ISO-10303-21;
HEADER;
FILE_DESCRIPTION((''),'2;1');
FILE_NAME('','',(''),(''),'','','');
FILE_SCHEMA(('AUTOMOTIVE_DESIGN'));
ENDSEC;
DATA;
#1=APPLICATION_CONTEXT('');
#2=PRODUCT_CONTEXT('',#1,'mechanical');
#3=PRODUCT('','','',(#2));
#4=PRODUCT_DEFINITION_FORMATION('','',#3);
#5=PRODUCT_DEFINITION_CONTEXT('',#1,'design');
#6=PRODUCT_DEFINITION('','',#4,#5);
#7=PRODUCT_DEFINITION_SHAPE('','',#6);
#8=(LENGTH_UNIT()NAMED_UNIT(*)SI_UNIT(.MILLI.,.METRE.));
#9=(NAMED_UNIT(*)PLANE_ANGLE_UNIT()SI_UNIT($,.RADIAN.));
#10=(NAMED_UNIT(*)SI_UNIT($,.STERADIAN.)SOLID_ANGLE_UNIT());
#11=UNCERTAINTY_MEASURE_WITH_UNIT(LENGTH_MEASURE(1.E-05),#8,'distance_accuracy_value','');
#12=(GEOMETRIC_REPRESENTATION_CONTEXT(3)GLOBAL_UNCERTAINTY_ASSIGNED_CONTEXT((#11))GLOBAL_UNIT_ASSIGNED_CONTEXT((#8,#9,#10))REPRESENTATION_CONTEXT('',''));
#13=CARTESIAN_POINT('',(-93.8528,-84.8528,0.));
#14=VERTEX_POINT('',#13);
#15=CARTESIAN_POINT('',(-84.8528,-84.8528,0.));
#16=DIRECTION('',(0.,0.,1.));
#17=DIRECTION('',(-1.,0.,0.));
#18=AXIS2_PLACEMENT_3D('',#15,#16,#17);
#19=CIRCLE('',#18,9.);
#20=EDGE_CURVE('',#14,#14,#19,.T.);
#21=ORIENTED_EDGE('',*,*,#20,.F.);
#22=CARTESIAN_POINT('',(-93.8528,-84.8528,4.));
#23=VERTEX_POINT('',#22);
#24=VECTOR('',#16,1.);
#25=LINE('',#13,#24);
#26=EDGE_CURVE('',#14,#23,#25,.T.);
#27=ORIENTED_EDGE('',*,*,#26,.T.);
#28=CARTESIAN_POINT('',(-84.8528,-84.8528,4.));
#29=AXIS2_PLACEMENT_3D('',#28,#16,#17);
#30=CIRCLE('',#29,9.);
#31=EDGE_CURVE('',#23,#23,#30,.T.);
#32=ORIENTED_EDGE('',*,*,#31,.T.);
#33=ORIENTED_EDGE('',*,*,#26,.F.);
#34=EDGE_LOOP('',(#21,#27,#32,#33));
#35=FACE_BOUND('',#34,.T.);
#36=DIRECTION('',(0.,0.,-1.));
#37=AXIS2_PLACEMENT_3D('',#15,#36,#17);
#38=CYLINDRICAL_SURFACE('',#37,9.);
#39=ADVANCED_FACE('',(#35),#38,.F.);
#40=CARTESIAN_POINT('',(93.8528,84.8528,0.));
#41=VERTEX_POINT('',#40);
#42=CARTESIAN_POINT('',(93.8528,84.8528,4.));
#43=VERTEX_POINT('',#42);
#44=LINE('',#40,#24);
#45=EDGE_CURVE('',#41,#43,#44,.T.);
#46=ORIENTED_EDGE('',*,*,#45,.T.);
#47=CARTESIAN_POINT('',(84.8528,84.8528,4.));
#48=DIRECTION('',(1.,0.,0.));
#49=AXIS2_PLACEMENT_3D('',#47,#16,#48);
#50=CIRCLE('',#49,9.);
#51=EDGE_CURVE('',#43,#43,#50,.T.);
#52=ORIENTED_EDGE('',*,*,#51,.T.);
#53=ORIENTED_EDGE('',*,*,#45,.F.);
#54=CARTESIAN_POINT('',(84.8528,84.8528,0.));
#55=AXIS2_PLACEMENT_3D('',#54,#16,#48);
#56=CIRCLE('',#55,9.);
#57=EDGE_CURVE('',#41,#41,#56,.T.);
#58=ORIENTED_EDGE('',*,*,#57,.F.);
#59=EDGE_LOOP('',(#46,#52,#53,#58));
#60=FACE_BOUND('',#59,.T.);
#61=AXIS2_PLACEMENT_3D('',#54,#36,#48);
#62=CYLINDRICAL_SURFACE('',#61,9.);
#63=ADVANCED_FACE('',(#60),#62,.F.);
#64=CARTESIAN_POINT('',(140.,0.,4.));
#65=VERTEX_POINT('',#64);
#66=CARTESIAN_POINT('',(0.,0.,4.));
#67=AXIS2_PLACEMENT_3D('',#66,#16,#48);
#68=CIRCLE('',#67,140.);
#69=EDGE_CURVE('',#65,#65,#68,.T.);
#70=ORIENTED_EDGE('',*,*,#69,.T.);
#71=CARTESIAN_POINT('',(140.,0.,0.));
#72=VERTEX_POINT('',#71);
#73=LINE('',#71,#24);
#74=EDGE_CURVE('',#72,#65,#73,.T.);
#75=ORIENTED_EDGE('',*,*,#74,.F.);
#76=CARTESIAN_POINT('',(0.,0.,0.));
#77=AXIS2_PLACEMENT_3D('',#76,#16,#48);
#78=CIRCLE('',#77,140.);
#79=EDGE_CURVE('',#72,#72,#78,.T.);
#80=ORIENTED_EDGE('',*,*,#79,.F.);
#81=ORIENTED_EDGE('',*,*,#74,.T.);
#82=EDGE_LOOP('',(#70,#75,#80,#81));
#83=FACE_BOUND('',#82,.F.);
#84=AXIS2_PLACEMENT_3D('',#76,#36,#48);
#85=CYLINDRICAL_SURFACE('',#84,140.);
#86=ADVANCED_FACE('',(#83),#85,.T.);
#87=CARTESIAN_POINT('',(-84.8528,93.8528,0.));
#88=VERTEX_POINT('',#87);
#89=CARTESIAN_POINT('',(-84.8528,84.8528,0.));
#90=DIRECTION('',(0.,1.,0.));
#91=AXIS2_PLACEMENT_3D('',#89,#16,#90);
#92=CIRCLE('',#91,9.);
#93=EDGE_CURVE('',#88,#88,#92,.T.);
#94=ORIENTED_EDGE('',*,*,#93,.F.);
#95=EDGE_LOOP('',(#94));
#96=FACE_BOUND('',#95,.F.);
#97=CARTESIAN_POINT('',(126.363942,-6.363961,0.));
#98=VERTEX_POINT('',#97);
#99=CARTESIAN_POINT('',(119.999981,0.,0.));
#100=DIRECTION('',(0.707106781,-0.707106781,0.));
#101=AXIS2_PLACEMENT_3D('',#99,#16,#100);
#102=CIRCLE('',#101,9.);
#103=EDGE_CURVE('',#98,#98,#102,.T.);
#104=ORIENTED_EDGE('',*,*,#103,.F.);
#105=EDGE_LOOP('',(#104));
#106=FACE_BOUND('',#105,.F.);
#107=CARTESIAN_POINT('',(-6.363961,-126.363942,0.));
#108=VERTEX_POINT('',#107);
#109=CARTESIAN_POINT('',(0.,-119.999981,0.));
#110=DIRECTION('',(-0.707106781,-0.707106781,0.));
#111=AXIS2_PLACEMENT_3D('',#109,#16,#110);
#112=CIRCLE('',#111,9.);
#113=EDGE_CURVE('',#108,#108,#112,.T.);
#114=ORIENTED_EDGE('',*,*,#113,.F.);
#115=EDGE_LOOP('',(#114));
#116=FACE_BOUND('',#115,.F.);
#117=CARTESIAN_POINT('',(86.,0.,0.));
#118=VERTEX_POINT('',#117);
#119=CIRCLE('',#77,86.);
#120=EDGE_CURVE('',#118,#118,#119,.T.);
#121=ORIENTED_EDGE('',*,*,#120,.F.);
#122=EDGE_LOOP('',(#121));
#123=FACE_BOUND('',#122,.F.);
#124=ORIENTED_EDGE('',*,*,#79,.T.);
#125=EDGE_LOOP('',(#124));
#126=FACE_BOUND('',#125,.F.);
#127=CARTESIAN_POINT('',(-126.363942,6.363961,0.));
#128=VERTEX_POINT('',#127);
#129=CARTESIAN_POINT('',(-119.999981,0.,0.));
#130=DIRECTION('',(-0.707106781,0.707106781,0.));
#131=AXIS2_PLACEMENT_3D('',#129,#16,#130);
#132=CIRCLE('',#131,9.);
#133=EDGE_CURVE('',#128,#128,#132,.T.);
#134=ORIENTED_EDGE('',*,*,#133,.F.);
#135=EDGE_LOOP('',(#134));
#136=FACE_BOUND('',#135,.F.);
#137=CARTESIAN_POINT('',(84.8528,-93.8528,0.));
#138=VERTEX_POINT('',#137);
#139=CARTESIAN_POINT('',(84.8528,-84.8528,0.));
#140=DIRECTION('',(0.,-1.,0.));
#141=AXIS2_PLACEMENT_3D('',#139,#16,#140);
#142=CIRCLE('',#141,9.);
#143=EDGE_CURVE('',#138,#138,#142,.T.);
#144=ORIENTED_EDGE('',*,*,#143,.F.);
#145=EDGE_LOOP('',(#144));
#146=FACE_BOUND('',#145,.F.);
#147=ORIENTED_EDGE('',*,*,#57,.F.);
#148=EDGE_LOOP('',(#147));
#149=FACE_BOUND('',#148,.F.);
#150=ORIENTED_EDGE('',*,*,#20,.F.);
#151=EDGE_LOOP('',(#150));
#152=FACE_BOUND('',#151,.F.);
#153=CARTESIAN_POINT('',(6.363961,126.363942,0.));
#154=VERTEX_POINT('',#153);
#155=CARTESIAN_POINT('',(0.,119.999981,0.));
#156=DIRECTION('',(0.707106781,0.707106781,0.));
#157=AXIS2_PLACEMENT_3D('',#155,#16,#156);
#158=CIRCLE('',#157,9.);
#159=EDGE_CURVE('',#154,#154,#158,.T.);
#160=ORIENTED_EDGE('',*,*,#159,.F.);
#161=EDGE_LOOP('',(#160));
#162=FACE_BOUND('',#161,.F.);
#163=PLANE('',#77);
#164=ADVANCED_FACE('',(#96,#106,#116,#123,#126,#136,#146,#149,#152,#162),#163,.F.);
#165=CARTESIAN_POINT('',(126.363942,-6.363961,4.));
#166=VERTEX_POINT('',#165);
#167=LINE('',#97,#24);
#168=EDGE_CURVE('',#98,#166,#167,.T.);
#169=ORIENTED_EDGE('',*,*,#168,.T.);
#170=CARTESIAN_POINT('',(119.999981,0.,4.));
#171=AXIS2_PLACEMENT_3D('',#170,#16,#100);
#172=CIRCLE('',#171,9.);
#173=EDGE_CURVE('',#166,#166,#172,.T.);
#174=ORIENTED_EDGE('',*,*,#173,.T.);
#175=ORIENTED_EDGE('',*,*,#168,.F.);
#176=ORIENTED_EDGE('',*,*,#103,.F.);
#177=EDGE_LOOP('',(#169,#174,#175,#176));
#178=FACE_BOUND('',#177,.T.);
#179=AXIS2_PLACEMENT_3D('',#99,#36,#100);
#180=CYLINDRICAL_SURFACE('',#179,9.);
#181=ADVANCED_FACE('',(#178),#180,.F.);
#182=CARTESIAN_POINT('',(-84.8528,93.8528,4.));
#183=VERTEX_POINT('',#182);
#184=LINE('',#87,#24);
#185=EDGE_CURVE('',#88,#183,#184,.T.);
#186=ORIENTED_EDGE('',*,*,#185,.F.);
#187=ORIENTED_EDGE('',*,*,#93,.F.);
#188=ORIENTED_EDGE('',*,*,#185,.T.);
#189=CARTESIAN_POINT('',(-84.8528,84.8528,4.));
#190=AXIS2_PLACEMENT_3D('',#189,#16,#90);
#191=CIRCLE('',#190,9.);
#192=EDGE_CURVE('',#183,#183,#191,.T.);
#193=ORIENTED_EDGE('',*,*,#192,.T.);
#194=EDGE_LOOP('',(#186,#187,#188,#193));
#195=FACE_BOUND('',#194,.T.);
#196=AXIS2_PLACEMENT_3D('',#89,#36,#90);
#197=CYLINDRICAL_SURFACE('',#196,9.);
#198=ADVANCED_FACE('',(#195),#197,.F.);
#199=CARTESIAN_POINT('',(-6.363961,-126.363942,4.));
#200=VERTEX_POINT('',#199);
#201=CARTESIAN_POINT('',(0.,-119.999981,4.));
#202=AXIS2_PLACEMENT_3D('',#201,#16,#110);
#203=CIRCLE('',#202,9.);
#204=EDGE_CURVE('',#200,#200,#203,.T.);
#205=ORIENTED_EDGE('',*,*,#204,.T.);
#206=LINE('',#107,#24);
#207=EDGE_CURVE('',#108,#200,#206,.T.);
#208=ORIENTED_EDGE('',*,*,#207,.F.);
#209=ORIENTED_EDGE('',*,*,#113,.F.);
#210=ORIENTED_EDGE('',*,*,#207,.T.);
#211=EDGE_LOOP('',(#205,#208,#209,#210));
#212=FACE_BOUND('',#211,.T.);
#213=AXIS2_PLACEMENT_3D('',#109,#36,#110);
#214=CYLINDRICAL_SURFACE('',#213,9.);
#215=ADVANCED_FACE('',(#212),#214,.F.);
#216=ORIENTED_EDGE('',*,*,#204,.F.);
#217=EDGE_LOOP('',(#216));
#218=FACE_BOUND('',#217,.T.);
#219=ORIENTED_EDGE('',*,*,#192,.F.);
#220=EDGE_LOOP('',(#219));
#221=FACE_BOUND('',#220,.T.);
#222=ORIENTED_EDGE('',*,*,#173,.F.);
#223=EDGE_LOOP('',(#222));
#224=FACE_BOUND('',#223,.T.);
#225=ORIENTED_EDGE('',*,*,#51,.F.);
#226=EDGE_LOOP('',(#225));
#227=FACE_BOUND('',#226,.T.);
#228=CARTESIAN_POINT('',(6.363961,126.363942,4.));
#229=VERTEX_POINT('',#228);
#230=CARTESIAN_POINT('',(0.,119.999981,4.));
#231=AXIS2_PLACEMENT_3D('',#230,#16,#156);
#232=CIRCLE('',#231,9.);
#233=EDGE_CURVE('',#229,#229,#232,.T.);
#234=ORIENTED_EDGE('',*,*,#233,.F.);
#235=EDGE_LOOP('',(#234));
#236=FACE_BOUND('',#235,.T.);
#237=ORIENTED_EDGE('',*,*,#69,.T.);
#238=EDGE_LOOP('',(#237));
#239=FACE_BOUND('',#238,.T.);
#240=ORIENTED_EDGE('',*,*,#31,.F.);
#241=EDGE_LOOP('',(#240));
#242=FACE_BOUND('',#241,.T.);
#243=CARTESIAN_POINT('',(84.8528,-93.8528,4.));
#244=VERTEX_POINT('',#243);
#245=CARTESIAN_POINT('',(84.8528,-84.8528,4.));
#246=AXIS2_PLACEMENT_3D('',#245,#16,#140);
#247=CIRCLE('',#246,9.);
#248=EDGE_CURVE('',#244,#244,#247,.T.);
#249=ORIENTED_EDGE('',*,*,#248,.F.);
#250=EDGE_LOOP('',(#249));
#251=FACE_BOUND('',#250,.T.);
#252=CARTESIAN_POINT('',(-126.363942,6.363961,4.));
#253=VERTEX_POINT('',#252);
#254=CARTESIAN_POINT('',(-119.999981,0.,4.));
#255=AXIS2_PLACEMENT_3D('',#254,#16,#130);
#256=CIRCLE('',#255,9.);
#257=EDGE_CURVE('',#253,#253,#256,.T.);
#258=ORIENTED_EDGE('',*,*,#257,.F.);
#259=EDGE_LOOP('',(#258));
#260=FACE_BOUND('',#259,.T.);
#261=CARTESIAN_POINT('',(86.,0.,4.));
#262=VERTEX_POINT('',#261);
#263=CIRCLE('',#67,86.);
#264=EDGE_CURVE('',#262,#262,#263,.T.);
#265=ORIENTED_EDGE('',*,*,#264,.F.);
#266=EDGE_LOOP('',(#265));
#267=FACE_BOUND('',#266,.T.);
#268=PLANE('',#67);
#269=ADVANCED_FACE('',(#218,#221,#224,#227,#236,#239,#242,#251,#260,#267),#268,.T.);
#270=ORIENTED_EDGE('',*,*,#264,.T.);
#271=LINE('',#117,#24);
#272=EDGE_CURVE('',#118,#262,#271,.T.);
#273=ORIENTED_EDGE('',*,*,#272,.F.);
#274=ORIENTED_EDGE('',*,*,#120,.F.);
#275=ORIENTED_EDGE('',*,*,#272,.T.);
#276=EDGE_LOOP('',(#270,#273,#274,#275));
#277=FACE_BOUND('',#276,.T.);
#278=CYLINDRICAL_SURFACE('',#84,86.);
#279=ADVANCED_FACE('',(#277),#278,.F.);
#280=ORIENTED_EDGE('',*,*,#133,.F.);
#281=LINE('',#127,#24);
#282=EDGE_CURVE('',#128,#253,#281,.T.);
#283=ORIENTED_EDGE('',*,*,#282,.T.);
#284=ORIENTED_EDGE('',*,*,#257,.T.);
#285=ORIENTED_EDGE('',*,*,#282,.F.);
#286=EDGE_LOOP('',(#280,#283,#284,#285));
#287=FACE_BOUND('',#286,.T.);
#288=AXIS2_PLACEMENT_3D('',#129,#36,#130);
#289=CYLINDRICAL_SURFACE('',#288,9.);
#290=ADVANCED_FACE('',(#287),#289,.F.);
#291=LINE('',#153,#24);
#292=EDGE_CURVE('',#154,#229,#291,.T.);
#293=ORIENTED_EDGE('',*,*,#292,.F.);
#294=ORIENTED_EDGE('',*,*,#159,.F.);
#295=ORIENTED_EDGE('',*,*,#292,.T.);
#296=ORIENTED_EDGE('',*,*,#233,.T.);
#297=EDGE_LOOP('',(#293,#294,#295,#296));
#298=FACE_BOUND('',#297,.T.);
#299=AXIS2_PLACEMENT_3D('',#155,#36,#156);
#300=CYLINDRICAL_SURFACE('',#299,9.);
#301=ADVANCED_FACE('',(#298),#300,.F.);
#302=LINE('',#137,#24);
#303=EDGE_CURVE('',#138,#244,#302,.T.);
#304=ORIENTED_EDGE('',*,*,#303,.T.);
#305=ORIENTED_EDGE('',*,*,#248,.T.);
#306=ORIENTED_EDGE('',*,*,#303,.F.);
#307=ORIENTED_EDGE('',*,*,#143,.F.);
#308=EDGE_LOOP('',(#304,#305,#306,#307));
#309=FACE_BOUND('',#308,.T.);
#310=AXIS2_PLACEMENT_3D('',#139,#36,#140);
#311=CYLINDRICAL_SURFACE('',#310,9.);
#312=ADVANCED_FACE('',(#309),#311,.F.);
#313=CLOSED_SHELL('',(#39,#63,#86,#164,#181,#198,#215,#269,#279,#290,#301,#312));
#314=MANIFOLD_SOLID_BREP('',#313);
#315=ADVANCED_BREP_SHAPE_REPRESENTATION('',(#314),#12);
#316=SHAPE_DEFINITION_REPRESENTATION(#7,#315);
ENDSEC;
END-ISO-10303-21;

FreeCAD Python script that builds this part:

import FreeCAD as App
import Part
import Sketcher
Q = App.Units.Quantity

doc = App.newDocument("Part")
body = doc.addObject("PartDesign::Body", "Body")

sketch1 = doc.addObject("Sketcher::SketchObject", "Sketch")
body.addObject(sketch1)
sketch1.AttachmentSupport = (doc.XY_Plane, [""])
sketch1.MapMode = "FlatFace"
sketch1.addGeometry([
    Part.Circle(App.Vector(0, 0, 0), App.Vector(0, 0, 1), 140),
    Part.Circle(App.Vector(0, 0, 0), App.Vector(0, 0, 1), 86),
], False)
sketch1.addConstraint([
    Sketcher.Constraint("Coincident", 0, 3, -1, 1),
    Sketcher.Constraint("Coincident", 1, 3, -1, 1),
    Sketcher.Constraint("Diameter", 0, Q("280 mm")),
    Sketcher.Constraint("Diameter", 1, Q("172 mm")),
])
pad1 = doc.addObject("PartDesign::Pad", "Pad")
body.addObject(pad1)
pad1.Profile = sketch1
pad1.Length = 4

sketch2 = doc.addObject("Sketcher::SketchObject", "Sketch001")
body.addObject(sketch2)
sketch2.AttachmentSupport = (doc.XY_Plane, [""])
sketch2.MapMode = "FlatFace"
sketch2.addGeometry(Part.Circle(App.Vector(84.8528, 84.8528, 0), App.Vector(0, 0, 1), 9), False)
sketch2.addConstraint([
    Sketcher.Constraint("Diameter", 0, Q("18 mm")),
    Sketcher.Constraint("DistanceX", -1, 1, 0, 3, Q("84.8528 mm")),
    Sketcher.Constraint("DistanceY", -1, 1, 0, 3, Q("84.8528 mm")),
])
pocket1 = doc.addObject("PartDesign::Pocket", "Pocket")
body.addObject(pocket1)
pocket1.Profile = sketch2
pocket1.Length = 4
pocket1.Reversed = True
doc.recompute()

polarpattern = doc.addObject("PartDesign::PolarPattern", "PolarPattern")
body.addObject(polarpattern)
polarpattern.Originals = [pocket1]
polarpattern.Axis = (doc.Z_Axis, [""])
polarpattern.Angle = 360
polarpattern.Occurrences = 8
body.Tip = polarpattern

doc.recompute()
